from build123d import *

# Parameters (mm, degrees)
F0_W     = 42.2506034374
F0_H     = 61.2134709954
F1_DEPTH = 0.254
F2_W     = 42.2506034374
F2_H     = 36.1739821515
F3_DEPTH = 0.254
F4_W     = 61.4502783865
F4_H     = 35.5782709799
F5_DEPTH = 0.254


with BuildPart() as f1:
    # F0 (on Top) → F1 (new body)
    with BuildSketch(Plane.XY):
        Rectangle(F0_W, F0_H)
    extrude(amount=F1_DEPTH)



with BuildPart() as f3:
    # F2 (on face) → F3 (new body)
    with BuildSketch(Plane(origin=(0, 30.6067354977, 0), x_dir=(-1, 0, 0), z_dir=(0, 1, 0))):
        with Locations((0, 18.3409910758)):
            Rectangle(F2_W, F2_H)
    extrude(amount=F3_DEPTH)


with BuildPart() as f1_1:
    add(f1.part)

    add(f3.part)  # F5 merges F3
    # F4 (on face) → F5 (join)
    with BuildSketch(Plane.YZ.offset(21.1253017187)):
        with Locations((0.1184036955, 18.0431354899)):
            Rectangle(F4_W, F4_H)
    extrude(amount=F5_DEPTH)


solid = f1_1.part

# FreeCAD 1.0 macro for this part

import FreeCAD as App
import Part
import Sketcher
from FreeCAD import Vector
Q = App.Units.Quantity


def add_polygon(sketch, points):
    """Adds a closed chain of lines whose ends are joined by coincident constraints."""
    first, n = sketch.GeometryCount, len(points)
    for a, b in zip(points, points[1:] + points[:1]):
        sketch.addGeometry(Part.LineSegment(App.Vector(*a, 0), App.Vector(*b, 0)), False)
    for i in range(n):
        sketch.addConstraint(Sketcher.Constraint("Coincident", first + i, 2, first + (i + 1) % n, 1))

doc = App.newDocument("Part")
params = doc.addObject("Spreadsheet::Sheet", "Params")
for row, (alias, value) in enumerate([
    ("pad1_length", "0.01 in"),
    ("pad2_length", "0.01 in"),
    ("pad3_length", "0.01 in"),
], start=1):
    params.set(f"A{row}", alias)
    params.set(f"B{row}", "=" + value)
    params.setAlias(f"B{row}", alias)

body = doc.addObject("PartDesign::Body", "Body")

# Sketch on XY plane
sketch1 = doc.addObject("Sketcher::SketchObject", "Sketch")
body.addObject(sketch1)
sketch1.AttachmentSupport = (doc.XY_Plane, [""])
sketch1.MapMode = "FlatFace"
add_polygon(sketch1, [(-21, 31), (-21, -31), (21, -31), (21, 31)])  # lines 0-3
sketch1.addConstraint([
    Sketcher.Constraint("Vertical", 0),
    Sketcher.Constraint("Horizontal", 1),
    Sketcher.Constraint("Vertical", 2),
    Sketcher.Constraint("Horizontal", 3),
    Sketcher.Constraint("Symmetric", 0, 2, 2, 2, -1, 1),
    Sketcher.Constraint("DistanceY", 0, 2, 0, 1, Q("61.213471 mm")),
    Sketcher.Constraint("DistanceX", 0, 2, -1, 1, Q("21.125302 mm")),
])
pad1 = doc.addObject("PartDesign::Pad", "Pad")
body.addObject(pad1)
pad1.Profile = sketch1
pad1.setExpression("Length", "Params.pad1_length")
body2 = doc.addObject("PartDesign::Body", "Body001")

# Sketch on XZ plane
sketch2 = doc.addObject("Sketcher::SketchObject", "Sketch001")
body2.addObject(sketch2)
sketch2.AttachmentSupport = (doc.getObject("XZ_Plane001"), [""])
sketch2.MapMode = "FlatFace"
sketch2.AttachmentOffset = App.Placement(Vector(0, 0, -30.606735), App.Rotation())
add_polygon(sketch2, [(21, 36), (21, 0), (-21, 0), (-21, 36)])  # lines 0-3
sketch2.addConstraint([
    Sketcher.Constraint("Vertical", 0),
    Sketcher.Constraint("Horizontal", 1),
    Sketcher.Constraint("Vertical", 2),
    Sketcher.Constraint("Horizontal", 3),
    Sketcher.Constraint("DistanceY", -1, 1, 0, 2, Q("0.01 in")),
    Sketcher.Constraint("DistanceX", -1, 1, 0, 2, Q("21.125302 mm")),
    Sketcher.Constraint("DistanceX", 1, 2, -1, 1, Q("21.125302 mm")),
    Sketcher.Constraint("DistanceY", 0, 2, 0, 1, Q("36.173982 mm")),
])
pad2 = doc.addObject("PartDesign::Pad", "Pad001")
body2.addObject(pad2)
pad2.Profile = sketch2
pad2.setExpression("Length", "Params.pad2_length")
pad2.Reversed = True
body.AllowCompound = True
doc.recompute()

boolean = doc.addObject("PartDesign::Boolean", "Boolean")
body.addObject(boolean)
boolean.Type = "Fuse"
boolean.addObjects([body2])

# Sketch on YZ plane
sketch3 = doc.addObject("Sketcher::SketchObject", "Sketch002")
body.addObject(sketch3)
sketch3.AttachmentSupport = (doc.YZ_Plane, [""])
sketch3.MapMode = "FlatFace"
sketch3.AttachmentOffset = App.Placement(Vector(0, 0, 21.125302), App.Rotation())
add_polygon(sketch3, [(-31, 36), (-31, 0), (31, 0), (31, 36)])  # lines 0-3
sketch3.addConstraint([
    Sketcher.Constraint("Vertical", 0),
    Sketcher.Constraint("Horizontal", 1),
    Sketcher.Constraint("Vertical", 2),
    Sketcher.Constraint("Horizontal", 3),
    Sketcher.Constraint("DistanceY", -1, 1, 0, 2, Q("0.01 in")),
    Sketcher.Constraint("DistanceX", 1, 1, 1, 2, Q("61.450278 mm")),
    Sketcher.Constraint("DistanceY", 0, 2, 0, 1, Q("35.578271 mm")),
    Sketcher.Constraint("DistanceX", 0, 2, -1, 1, Q("30.606735 mm")),
])
pad3 = doc.addObject("PartDesign::Pad", "Pad002")
body.addObject(pad3)
pad3.Profile = sketch3
pad3.setExpression("Length", "Params.pad3_length")

doc.recompute()
